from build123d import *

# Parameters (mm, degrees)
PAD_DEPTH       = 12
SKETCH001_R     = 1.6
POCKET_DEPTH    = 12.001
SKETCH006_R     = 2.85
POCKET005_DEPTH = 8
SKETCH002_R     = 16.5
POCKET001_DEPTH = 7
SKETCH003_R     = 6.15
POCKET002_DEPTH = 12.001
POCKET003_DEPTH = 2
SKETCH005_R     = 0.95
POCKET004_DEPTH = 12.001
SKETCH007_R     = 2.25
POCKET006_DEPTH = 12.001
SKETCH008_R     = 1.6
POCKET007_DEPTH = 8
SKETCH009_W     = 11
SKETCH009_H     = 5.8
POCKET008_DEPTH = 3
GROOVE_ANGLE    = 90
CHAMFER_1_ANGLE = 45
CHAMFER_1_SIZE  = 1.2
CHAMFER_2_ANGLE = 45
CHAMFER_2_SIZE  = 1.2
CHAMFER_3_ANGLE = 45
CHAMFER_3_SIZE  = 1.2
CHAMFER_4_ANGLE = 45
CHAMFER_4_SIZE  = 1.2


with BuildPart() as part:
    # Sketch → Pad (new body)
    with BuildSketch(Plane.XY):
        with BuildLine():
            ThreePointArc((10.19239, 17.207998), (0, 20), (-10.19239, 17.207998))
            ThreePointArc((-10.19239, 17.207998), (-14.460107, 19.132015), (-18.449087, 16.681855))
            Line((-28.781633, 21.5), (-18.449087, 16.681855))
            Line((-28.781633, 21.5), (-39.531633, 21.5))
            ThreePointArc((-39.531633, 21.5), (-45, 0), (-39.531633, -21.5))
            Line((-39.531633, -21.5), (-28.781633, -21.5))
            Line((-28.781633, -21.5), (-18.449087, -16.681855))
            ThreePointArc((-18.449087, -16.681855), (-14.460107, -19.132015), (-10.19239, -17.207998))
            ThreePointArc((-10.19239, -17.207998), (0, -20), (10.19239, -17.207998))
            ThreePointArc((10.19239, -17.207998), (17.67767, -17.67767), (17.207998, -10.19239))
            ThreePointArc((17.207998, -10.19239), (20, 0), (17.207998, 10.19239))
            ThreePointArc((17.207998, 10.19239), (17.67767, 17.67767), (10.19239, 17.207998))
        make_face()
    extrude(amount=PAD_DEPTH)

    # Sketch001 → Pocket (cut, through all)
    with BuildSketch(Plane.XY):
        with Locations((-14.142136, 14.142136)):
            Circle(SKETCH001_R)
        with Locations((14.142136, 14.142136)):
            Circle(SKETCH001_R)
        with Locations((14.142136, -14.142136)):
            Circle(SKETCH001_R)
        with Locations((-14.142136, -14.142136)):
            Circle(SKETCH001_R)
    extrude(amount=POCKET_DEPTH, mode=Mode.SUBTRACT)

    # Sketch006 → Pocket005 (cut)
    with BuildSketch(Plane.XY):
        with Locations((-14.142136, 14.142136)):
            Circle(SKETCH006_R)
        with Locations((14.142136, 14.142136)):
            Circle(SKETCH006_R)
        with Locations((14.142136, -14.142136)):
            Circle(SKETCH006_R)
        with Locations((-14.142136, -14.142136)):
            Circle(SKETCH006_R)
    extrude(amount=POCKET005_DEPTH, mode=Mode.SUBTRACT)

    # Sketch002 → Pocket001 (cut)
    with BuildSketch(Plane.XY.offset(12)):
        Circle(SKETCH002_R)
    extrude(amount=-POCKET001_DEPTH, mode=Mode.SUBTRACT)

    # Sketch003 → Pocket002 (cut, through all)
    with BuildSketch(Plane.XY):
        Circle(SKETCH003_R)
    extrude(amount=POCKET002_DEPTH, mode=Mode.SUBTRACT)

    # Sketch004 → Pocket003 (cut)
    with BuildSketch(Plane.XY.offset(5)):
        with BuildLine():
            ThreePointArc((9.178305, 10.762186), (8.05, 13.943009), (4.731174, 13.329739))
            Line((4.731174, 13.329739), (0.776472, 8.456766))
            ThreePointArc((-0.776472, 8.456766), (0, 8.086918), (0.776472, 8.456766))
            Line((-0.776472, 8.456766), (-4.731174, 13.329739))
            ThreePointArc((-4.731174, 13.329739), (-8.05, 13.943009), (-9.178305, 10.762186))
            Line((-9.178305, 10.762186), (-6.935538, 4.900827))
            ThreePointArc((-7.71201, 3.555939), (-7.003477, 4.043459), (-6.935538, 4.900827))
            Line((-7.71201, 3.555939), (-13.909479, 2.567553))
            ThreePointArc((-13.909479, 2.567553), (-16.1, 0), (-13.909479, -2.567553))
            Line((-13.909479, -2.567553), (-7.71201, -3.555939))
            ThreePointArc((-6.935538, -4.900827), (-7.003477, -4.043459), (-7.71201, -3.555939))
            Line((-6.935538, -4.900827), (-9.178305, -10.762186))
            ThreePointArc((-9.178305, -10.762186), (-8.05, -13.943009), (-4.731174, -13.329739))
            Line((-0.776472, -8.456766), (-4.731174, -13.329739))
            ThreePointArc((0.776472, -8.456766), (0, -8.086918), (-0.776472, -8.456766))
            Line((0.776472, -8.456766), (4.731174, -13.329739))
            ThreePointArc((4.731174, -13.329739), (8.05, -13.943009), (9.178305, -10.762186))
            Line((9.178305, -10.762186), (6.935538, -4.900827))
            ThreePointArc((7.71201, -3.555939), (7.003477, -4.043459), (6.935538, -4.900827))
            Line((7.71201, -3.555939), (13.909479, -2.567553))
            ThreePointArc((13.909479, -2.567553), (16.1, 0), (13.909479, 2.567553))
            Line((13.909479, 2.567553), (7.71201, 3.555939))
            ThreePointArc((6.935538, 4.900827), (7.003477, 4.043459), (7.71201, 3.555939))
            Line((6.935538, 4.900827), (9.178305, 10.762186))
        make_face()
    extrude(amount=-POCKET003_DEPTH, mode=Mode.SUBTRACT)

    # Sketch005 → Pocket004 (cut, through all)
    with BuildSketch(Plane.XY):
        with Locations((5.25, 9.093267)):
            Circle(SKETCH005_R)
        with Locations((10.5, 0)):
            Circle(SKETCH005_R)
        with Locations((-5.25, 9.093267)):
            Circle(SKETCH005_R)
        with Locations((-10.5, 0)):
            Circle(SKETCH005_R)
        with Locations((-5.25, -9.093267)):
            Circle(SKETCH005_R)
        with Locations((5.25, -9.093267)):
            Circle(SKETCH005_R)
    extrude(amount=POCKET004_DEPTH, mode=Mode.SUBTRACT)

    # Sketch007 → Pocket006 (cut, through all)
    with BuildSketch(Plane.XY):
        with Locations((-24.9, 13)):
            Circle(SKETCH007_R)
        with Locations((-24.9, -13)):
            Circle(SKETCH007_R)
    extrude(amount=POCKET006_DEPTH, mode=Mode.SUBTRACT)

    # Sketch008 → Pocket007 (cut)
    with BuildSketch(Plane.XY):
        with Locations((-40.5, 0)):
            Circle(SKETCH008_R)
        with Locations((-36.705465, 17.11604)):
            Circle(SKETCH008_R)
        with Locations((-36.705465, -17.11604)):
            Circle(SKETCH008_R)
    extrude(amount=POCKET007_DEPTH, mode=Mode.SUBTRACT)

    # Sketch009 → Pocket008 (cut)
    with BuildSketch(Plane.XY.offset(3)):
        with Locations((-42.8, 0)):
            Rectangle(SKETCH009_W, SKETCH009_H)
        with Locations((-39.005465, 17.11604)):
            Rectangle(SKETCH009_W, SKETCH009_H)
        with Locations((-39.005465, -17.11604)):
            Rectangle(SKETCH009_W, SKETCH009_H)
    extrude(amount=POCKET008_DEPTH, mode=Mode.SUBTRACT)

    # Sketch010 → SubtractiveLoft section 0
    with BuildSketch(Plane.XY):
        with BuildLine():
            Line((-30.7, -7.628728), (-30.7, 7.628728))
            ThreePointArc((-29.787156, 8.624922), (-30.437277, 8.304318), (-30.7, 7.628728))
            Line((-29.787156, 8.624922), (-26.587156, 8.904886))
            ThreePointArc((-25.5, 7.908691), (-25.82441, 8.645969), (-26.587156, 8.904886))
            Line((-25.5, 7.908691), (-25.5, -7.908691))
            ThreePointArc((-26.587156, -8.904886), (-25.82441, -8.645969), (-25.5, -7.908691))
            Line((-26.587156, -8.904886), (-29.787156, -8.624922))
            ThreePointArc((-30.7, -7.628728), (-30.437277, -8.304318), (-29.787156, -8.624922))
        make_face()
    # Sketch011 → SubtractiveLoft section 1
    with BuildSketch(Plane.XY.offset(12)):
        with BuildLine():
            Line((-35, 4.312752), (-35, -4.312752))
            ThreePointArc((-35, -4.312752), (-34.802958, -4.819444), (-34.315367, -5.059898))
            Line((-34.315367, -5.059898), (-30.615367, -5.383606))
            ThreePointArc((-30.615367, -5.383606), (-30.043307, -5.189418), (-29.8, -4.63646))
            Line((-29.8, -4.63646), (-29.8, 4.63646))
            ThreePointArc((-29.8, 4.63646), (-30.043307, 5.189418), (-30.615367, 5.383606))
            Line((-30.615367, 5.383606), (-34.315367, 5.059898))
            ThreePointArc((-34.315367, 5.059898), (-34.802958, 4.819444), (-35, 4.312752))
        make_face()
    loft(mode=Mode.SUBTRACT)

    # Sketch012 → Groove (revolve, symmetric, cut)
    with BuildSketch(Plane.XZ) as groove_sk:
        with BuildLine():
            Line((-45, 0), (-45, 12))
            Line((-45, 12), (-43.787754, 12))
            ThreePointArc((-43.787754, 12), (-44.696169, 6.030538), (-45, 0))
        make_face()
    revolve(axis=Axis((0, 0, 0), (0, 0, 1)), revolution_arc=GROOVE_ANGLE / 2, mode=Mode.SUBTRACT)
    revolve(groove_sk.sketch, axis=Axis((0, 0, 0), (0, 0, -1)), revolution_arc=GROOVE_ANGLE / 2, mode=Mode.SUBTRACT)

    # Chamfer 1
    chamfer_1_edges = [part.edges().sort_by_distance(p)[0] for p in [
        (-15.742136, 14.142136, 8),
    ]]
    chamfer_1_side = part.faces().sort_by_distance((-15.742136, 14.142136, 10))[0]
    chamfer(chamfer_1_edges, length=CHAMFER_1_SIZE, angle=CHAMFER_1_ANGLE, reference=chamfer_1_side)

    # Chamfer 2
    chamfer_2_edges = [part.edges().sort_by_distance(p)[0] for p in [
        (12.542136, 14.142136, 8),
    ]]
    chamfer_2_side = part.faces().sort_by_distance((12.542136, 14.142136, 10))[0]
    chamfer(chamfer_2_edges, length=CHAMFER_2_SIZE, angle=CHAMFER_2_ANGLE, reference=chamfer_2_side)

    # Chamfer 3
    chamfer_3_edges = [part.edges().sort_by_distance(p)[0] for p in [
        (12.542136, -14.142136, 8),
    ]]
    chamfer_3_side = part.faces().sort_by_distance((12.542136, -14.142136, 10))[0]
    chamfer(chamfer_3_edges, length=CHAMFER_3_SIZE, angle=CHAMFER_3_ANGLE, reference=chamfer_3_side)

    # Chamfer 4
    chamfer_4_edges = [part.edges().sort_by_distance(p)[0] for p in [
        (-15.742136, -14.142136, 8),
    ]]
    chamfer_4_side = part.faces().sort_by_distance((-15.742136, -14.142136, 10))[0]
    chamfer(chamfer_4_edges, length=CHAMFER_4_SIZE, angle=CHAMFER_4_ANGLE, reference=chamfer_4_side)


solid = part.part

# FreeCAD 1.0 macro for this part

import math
import FreeCAD as App
import Part
import Sketcher

V = App.Vector
Q = App.Units.Quantity


def edges_at(feature, points):
    """Names of the edges that pass closest to the given points."""
    edges = feature.Shape.Edges
    near = lambda p: min(range(len(edges)), key=lambda i: edges[i].distToShape(Part.Vertex(*p))[0])
    return sorted({f"Edge{near(p) + 1}" for p in points})


def add_polygon(sketch, points):
    """Adds a closed chain of lines whose ends are joined by coincident constraints."""
    first, n = sketch.GeometryCount, len(points)
    for a, b in zip(points, points[1:] + points[:1]):
        sketch.addGeometry(Part.LineSegment(App.Vector(*a, 0), App.Vector(*b, 0)), False)
    for i in range(n):
        sketch.addConstraint(Sketcher.Constraint("Coincident", first + i, 2, first + (i + 1) % n, 1))

doc = App.newDocument("Part")
body = doc.addObject("PartDesign::Body", "Body")

sketch1 = doc.addObject("Sketcher::SketchObject", "Sketch")
body.addObject(sketch1)
sketch1.AttachmentSupport = (doc.XY_Plane, [""])
sketch1.MapMode = "FlatFace"
sketch1.addGeometry(Part.ArcOfCircle(Part.Circle(V(0, 0, 0), V(0, 0, 1), 20), math.radians(59), math.radians(121)), False)
sketch1.addGeometry(Part.ArcOfCircle(Part.Circle(V(-14, 14, 0), V(0, 0, 1), 5), math.radians(38), math.radians(149)), False)
sketch1.addGeometry(Part.LineSegment(V(-18, 17, 0), V(-29, 22, 0)), False)
sketch1.addGeometry(Part.LineSegment(V(-29, 22, 0), V(-40, 22, 0)), False)
sketch1.addGeometry(Part.ArcOfCircle(Part.Circle(V(0, 0, 0), V(0, 0, 1), 45), math.radians(151), math.radians(209)), False)
sketch1.addGeometry(Part.LineSegment(V(-40, -22, 0), V(-29, -22, 0)), False)
sketch1.addGeometry(Part.LineSegment(V(-29, -22, 0), V(-18, -17, 0)), False)
sketch1.addGeometry(Part.ArcOfCircle(Part.Circle(V(-14, -14, 0), V(0, 0, 1), 5), math.radians(-149), math.radians(-38)), False)
sketch1.addGeometry(Part.ArcOfCircle(Part.Circle(V(0, 0, 0), V(0, 0, 1), 20), math.radians(-121), math.radians(-59)), False)
sketch1.addGeometry(Part.ArcOfCircle(Part.Circle(V(14, -14, 0), V(0, 0, 1), 5), math.radians(-142), math.radians(52)), False)
sketch1.addGeometry(Part.ArcOfCircle(Part.Circle(V(0, 0, 0), V(0, 0, 1), 20), math.radians(-31), math.radians(31)), False)
sketch1.addGeometry(Part.ArcOfCircle(Part.Circle(V(14, 14, 0), V(0, 0, 1), 5), math.radians(-52), math.radians(142)), False)
sketch1.addConstraint(Sketcher.Constraint("Coincident", 0, 2, 1, 1))
sketch1.addConstraint(Sketcher.Constraint("Coincident", 1, 2, 2, 1))
sketch1.addConstraint(Sketcher.Constraint("Coincident", 2, 2, 3, 1))
sketch1.addConstraint(Sketcher.Constraint("Coincident", 3, 2, 4, 1))
sketch1.addConstraint(Sketcher.Constraint("Coincident", 4, 2, 5, 1))
sketch1.addConstraint(Sketcher.Constraint("Coincident", 5, 2, 6, 1))
sketch1.addConstraint(Sketcher.Constraint("Coincident", 6, 2, 7, 1))
sketch1.addConstraint(Sketcher.Constraint("Coincident", 7, 2, 8, 1))
sketch1.addConstraint(Sketcher.Constraint("Coincident", 8, 2, 9, 1))
sketch1.addConstraint(Sketcher.Constraint("Coincident", 9, 2, 10, 1))
sketch1.addConstraint(Sketcher.Constraint("Coincident", 10, 2, 11, 1))
sketch1.addConstraint(Sketcher.Constraint("Coincident", 11, 2, 0, 1))
sketch1.addConstraint(Sketcher.Constraint("Horizontal", 3))
sketch1.addConstraint(Sketcher.Constraint("Horizontal", 5))
sketch1.addConstraint(Sketcher.Constraint("Coincident", 0, 3, -1, 1))
sketch1.addConstraint(Sketcher.Constraint("Coincident", 4, 3, -1, 1))
sketch1.addConstraint(Sketcher.Constraint("Coincident", 8, 3, -1, 1))
sketch1.addConstraint(Sketcher.Constraint("Coincident", 10, 3, -1, 1))
sketch1.addConstraint(Sketcher.Constraint("Equal", 1, 7))
sketch1.addConstraint(Sketcher.Constraint("Equal", 0, 8))
sketch1.addConstraint(Sketcher.Constraint("Equal", 7, 9))
sketch1.addConstraint(Sketcher.Constraint("Equal", 8, 10))
sketch1.addConstraint(Sketcher.Constraint("Equal", 9, 11))
sketch1.addConstraint(Sketcher.Constraint("Symmetric", 1, 3, 9, 3, -1, 1))
sketch1.addConstraint(Sketcher.Constraint("Symmetric", 7, 3, 11, 3, -1, 1))
sketch1.addConstraint(Sketcher.Constraint("Symmetric", 7, 3, 9, 3, -2))
sketch1.addConstraint(Sketcher.Constraint("Symmetric", 2, 2, 5, 2, -1))
sketch1.addConstraint(Sketcher.Constraint("Vertical", 1, 2, 6, 2))
sketch1.addConstraint(Sketcher.Constraint("Radius", 0, Q("20.000002 mm")))
sketch1.addConstraint(Sketcher.Constraint("Radius", 1, Q("5.000001 mm")))
sketch1.addConstraint(Sketcher.Constraint("Radius", 4, Q("45.000001 mm")))
sketch1.addConstraint(Sketcher.Constraint("Angle", 2, Q("155.000001 deg")))
sketch1.addConstraint(Sketcher.Constraint("DistanceY", 4, 2, 3, 2, Q("43 mm")))
sketch1.addConstraint(Sketcher.Constraint("DistanceX", 3, 2, 3, 1, Q("10.75 mm")))
sketch1.addConstraint(Sketcher.Constraint("DistanceY", 7, 2, -1, 1, Q("17.207998 mm")))
sketch1.addConstraint(Sketcher.Constraint("DistanceX", 10, 3, 10, 2, Q("17.208 mm")))
pad1 = doc.addObject("PartDesign::Pad", "Pad")
body.addObject(pad1)
pad1.Profile = sketch1
pad1.Length = 12

sketch2 = doc.addObject("Sketcher::SketchObject", "Sketch001")
body.addObject(sketch2)
sketch2.AttachmentSupport = (doc.XY_Plane, [""])
sketch2.MapMode = "FlatFace"
sketch2.addGeometry(Part.Circle(V(-14.1, 14.1, 0), V(0, 0, 1), 1.6), False)
sketch2.addGeometry(Part.Circle(V(14.1, 14.1, 0), V(0, 0, 1), 1.6), False)
sketch2.addGeometry(Part.Circle(V(14.1, -14.1, 0), V(0, 0, 1), 1.6), False)
sketch2.addGeometry(Part.Circle(V(-14.1, -14.1, 0), V(0, 0, 1), 1.6), False)
sketch2.addConstraint(Sketcher.Constraint("Equal", 0, 1))
sketch2.addConstraint(Sketcher.Constraint("Equal", 1, 2))
sketch2.addConstraint(Sketcher.Constraint("Equal", 2, 3))
sketch2.addConstraint(Sketcher.Constraint("Symmetric", 0, 3, 2, 3, -1, 1))
sketch2.addConstraint(Sketcher.Constraint("Symmetric", 1, 3, 3, 3, -1, 1))
sketch2.addConstraint(Sketcher.Constraint("Symmetric", 0, 3, 1, 3, -2))
sketch2.addConstraint(Sketcher.Constraint("Diameter", 0, Q("3.2 mm")))
sketch2.addConstraint(Sketcher.Constraint("DistanceX", 0, 3, -1, 1, Q("14.142136 mm")))
sketch2.addConstraint(Sketcher.Constraint("DistanceY", -1, 1, 0, 3, Q("14.142136 mm")))
pocket1 = doc.addObject("PartDesign::Pocket", "Pocket")
body.addObject(pocket1)
pocket1.Profile = sketch2
pocket1.Type = "ThroughAll"
pocket1.Reversed = True

sketch3 = doc.addObject("Sketcher::SketchObject", "Sketch002")
body.addObject(sketch3)
sketch3.AttachmentSupport = (doc.XY_Plane, [""])
sketch3.MapMode = "FlatFace"
sketch3.addGeometry(Part.Circle(V(-14.1, 14.1, 0), V(0, 0, 1), 2.9), False)
sketch3.addGeometry(Part.Circle(V(14.1, 14.1, 0), V(0, 0, 1), 2.9), False)
sketch3.addGeometry(Part.Circle(V(14.1, -14.1, 0), V(0, 0, 1), 2.9), False)
sketch3.addGeometry(Part.Circle(V(-14.1, -14.1, 0), V(0, 0, 1), 2.9), False)
sketch3.addConstraint(Sketcher.Constraint("Equal", 0, 1))
sketch3.addConstraint(Sketcher.Constraint("Equal", 1, 2))
sketch3.addConstraint(Sketcher.Constraint("Equal", 2, 3))
sketch3.addConstraint(Sketcher.Constraint("Symmetric", 0, 3, 2, 3, -1, 1))
sketch3.addConstraint(Sketcher.Constraint("Symmetric", 1, 3, 3, 3, -1, 1))
sketch3.addConstraint(Sketcher.Constraint("Symmetric", 0, 3, 1, 3, -2))
sketch3.addConstraint(Sketcher.Constraint("Diameter", 0, Q("5.7 mm")))
sketch3.addConstraint(Sketcher.Constraint("DistanceX", 0, 3, -1, 1, Q("14.142136 mm")))
sketch3.addConstraint(Sketcher.Constraint("DistanceY", -1, 1, 0, 3, Q("14.142136 mm")))
pocket2 = doc.addObject("PartDesign::Pocket", "Pocket001")
body.addObject(pocket2)
pocket2.Profile = sketch3
pocket2.Length = 8
pocket2.Reversed = True

sketch4 = doc.addObject("Sketcher::SketchObject", "Sketch003")
body.addObject(sketch4)
sketch4.AttachmentSupport = (doc.XY_Plane, [""])
sketch4.MapMode = "FlatFace"
sketch4.AttachmentOffset = App.Placement(V(0, 0, 12), App.Rotation())
sketch4.addGeometry(Part.Circle(V(0, 0, 0), V(0, 0, 1), 16), False)
sketch4.addConstraint(Sketcher.Constraint("Coincident", 0, 3, -1, 1))
sketch4.addConstraint(Sketcher.Constraint("Diameter", 0, Q("33 mm")))
pocket3 = doc.addObject("PartDesign::Pocket", "Pocket002")
body.addObject(pocket3)
pocket3.Profile = sketch4
pocket3.Length = 7

sketch5 = doc.addObject("Sketcher::SketchObject", "Sketch004")
body.addObject(sketch5)
sketch5.AttachmentSupport = (doc.XY_Plane, [""])
sketch5.MapMode = "FlatFace"
sketch5.addGeometry(Part.Circle(V(0, 0, 0), V(0, 0, 1), 6), False)
sketch5.addConstraint(Sketcher.Constraint("Coincident", 0, 3, -1, 1))
sketch5.addConstraint(Sketcher.Constraint("Diameter", 0, Q("12.3 mm")))
pocket4 = doc.addObject("PartDesign::Pocket", "Pocket003")
body.addObject(pocket4)
pocket4.Profile = sketch5
pocket4.Type = "ThroughAll"
pocket4.Reversed = True

sketch6 = doc.addObject("Sketcher::SketchObject", "Sketch005")
body.addObject(sketch6)
sketch6.AttachmentSupport = (doc.XY_Plane, [""])
sketch6.MapMode = "FlatFace"
sketch6.AttachmentOffset = App.Placement(V(0, 0, 5), App.Rotation())
sketch6.addGeometry(Part.ArcOfCircle(Part.Circle(V(6.7, 11.7, 0), V(0, 0, 1), 2.6), math.radians(-21), math.radians(141)), False)
sketch6.addGeometry(Part.LineSegment(V(4.7, 13.3, 0), V(0.8, 8.5, 0)), False)
sketch6.addGeometry(Part.ArcOfCircle(Part.Circle(V(0, 9.1, 0), V(0, 0, 1), 1), math.radians(-141), math.radians(-39)), False)
sketch6.addGeometry(Part.LineSegment(V(-0.8, 8.5, 0), V(-4.7, 13.3, 0)), False)
sketch6.addGeometry(Part.ArcOfCircle(Part.Circle(V(-6.7, 11.7, 0), V(0, 0, 1), 2.6), math.radians(39), math.radians(201)), False)
sketch6.addGeometry(Part.LineSegment(V(-9.2, 10.8, 0), V(-6.9, 4.9, 0)), False)
sketch6.addGeometry(Part.ArcOfCircle(Part.Circle(V(-7.9, 4.5, 0), V(0, 0, 1), 1), math.radians(-81), math.radians(21)), False)
sketch6.addGeometry(Part.LineSegment(V(-7.7, 3.6, 0), V(-13.9, 2.6, 0)), False)
sketch6.addGeometry(Part.ArcOfCircle(Part.Circle(V(-13.5, 0, 0), V(0, 0, 1), 2.6), math.radians(99), math.radians(261)), False)
sketch6.addGeometry(Part.LineSegment(V(-13.9, -2.6, 0), V(-7.7, -3.6, 0)), False)
sketch6.addGeometry(Part.ArcOfCircle(Part.Circle(V(-7.9, -4.5, 0), V(0, 0, 1), 1), math.radians(-21), math.radians(81)), False)
sketch6.addGeometry(Part.LineSegment(V(-6.9, -4.9, 0), V(-9.2, -10.8, 0)), False)
sketch6.addGeometry(Part.ArcOfCircle(Part.Circle(V(-6.7, -11.7, 0), V(0, 0, 1), 2.6), math.radians(159), math.radians(321)), False)
sketch6.addGeometry(Part.LineSegment(V(-4.7, -13.3, 0), V(-0.8, -8.5, 0)), False)
sketch6.addGeometry(Part.ArcOfCircle(Part.Circle(V(0, -9.1, 0), V(0, 0, 1), 1), math.radians(39), math.radians(141)), False)
sketch6.addGeometry(Part.LineSegment(V(0.8, -8.5, 0), V(4.7, -13.3, 0)), False)
sketch6.addGeometry(Part.ArcOfCircle(Part.Circle(V(6.7, -11.7, 0), V(0, 0, 1), 2.6), math.radians(-141), math.radians(21)), False)
sketch6.addGeometry(Part.LineSegment(V(9.2, -10.8, 0), V(6.9, -4.9, 0)), False)
sketch6.addGeometry(Part.ArcOfCircle(Part.Circle(V(7.9, -4.5, 0), V(0, 0, 1), 1), math.radians(99), math.radians(201)), False)
sketch6.addGeometry(Part.LineSegment(V(7.7, -3.6, 0), V(13.9, -2.6, 0)), False)
sketch6.addGeometry(Part.ArcOfCircle(Part.Circle(V(13.5, 0, 0), V(0, 0, 1), 2.6), math.radians(-81), math.radians(81)), False)
sketch6.addGeometry(Part.LineSegment(V(13.9, 2.6, 0), V(7.7, 3.6, 0)), False)
sketch6.addGeometry(Part.ArcOfCircle(Part.Circle(V(7.9, 4.5, 0), V(0, 0, 1), 1), math.radians(159), math.radians(261)), False)
sketch6.addGeometry(Part.LineSegment(V(6.9, 4.9, 0), V(9.2, 10.8, 0)), False)
sketch6.addConstraint(Sketcher.Constraint("Tangent", 0, 2, 1, 1))
sketch6.addConstraint(Sketcher.Constraint("Tangent", 1, 2, 2, 2))
sketch6.addConstraint(Sketcher.Constraint("Tangent", 2, 1, 3, 1))
sketch6.addConstraint(Sketcher.Constraint("Tangent", 3, 2, 4, 1))
sketch6.addConstraint(Sketcher.Constraint("Tangent", 4, 2, 5, 1))
sketch6.addConstraint(Sketcher.Constraint("Tangent", 5, 2, 6, 2))
sketch6.addConstraint(Sketcher.Constraint("Tangent", 6, 1, 7, 1))
sketch6.addConstraint(Sketcher.Constraint("Tangent", 7, 2, 8, 1))
sketch6.addConstraint(Sketcher.Constraint("Tangent", 8, 2, 9, 1))
sketch6.addConstraint(Sketcher.Constraint("Tangent", 9, 2, 10, 2))
sketch6.addConstraint(Sketcher.Constraint("Tangent", 10, 1, 11, 1))
sketch6.addConstraint(Sketcher.Constraint("Tangent", 11, 2, 12, 1))
sketch6.addConstraint(Sketcher.Constraint("Tangent", 12, 2, 13, 1))
sketch6.addConstraint(Sketcher.Constraint("Tangent", 13, 2, 14, 2))
sketch6.addConstraint(Sketcher.Constraint("Tangent", 14, 1, 15, 1))
sketch6.addConstraint(Sketcher.Constraint("Tangent", 15, 2, 16, 1))
sketch6.addConstraint(Sketcher.Constraint("Tangent", 16, 2, 17, 1))
sketch6.addConstraint(Sketcher.Constraint("Tangent", 17, 2, 18, 2))
sketch6.addConstraint(Sketcher.Constraint("Tangent", 18, 1, 19, 1))
sketch6.addConstraint(Sketcher.Constraint("Tangent", 19, 2, 20, 1))
sketch6.addConstraint(Sketcher.Constraint("Tangent", 20, 2, 21, 1))
sketch6.addConstraint(Sketcher.Constraint("Tangent", 21, 2, 22, 2))
sketch6.addConstraint(Sketcher.Constraint("Tangent", 22, 1, 23, 1))
sketch6.addConstraint(Sketcher.Constraint("Tangent", 23, 2, 0, 1))
sketch6.addConstraint(Sketcher.Constraint("Equal", 0, 4))
sketch6.addConstraint(Sketcher.Constraint("Equal", 2, 6))
sketch6.addConstraint(Sketcher.Constraint("Equal", 4, 8))
sketch6.addConstraint(Sketcher.Constraint("Equal", 6, 10))
sketch6.addConstraint(Sketcher.Constraint("Equal", 8, 12))
sketch6.addConstraint(Sketcher.Constraint("Equal", 10, 14))
sketch6.addConstraint(Sketcher.Constraint("Equal", 12, 16))
sketch6.addConstraint(Sketcher.Constraint("Equal", 14, 18))
sketch6.addConstraint(Sketcher.Constraint("Equal", 16, 20))
sketch6.addConstraint(Sketcher.Constraint("Equal", 18, 22))
sketch6.addConstraint(Sketcher.Constraint("Symmetric", 0, 3, 12, 3, -1, 1))
sketch6.addConstraint(Sketcher.Constraint("Symmetric", 2, 3, 14, 3, -1, 1))
sketch6.addConstraint(Sketcher.Constraint("Symmetric", 4, 3, 16, 3, -1, 1))
sketch6.addConstraint(Sketcher.Constraint("Symmetric", 6, 3, 18, 3, -1, 1))
sketch6.addConstraint(Sketcher.Constraint("Symmetric", 8, 3, 20, 3, -1, 1))
sketch6.addConstraint(Sketcher.Constraint("Symmetric", 10, 3, 22, 3, -1, 1))
sketch6.addConstraint(Sketcher.Constraint("Symmetric", 0, 3, 4, 3, -2))
sketch6.addConstraint(Sketcher.Constraint("Symmetric", 10, 3, 18, 3, -2))
sketch6.addConstraint(Sketcher.Constraint("PointOnObject", 2, 3, -2))
sketch6.addConstraint(Sketcher.Constraint("PointOnObject", 8, 3, -1))
sketch6.addConstraint(Sketcher.Constraint("Equal", 3, 5))
sketch6.addConstraint(Sketcher.Constraint("Equal", 5, 7))
sketch6.addConstraint(Sketcher.Constraint("Radius", 2, Q("1 mm")))
sketch6.addConstraint(Sketcher.Constraint("Radius", 0, Q("2.6 mm")))
sketch6.addConstraint(Sketcher.Constraint("DistanceX", 8, 3, -1, 1, Q("13.5 mm")))
sketch6.addConstraint(Sketcher.Constraint("DistanceX", 4, 3, 0, 3, Q("13.5 mm")))
sketch6.addConstraint(Sketcher.Constraint("DistanceX", 1, 2, 0, 2, Q("3.954702 mm")))
sketch6.addConstraint(Sketcher.Constraint("DistanceY", 10, 3, 6, 1, Q("8.099399 mm")))
pocket5 = doc.addObject("PartDesign::Pocket", "Pocket004")
body.addObject(pocket5)
pocket5.Profile = sketch6
pocket5.Length = 2

sketch7 = doc.addObject("Sketcher::SketchObject", "Sketch006")
body.addObject(sketch7)
sketch7.AttachmentSupport = (doc.XY_Plane, [""])
sketch7.MapMode = "FlatFace"
sketch7.addGeometry(Part.Circle(V(5.2, 9.1, 0), V(0, 0, 1), 0.9), False)
sketch7.addGeometry(Part.Circle(V(10.5, 0, 0), V(0, 0, 1), 0.9), False)
sketch7.addGeometry(Part.Circle(V(-5.2, 9.1, 0), V(0, 0, 1), 0.9), False)
sketch7.addGeometry(Part.Circle(V(-10.5, 0, 0), V(0, 0, 1), 0.9), False)
sketch7.addGeometry(Part.Circle(V(-5.2, -9.1, 0), V(0, 0, 1), 0.9), False)
sketch7.addGeometry(Part.Circle(V(5.2, -9.1, 0), V(0, 0, 1), 0.9), False)
sketch7.addConstraint(Sketcher.Constraint("Equal", 0, 1))
sketch7.addConstraint(Sketcher.Constraint("Equal", 1, 2))
sketch7.addConstraint(Sketcher.Constraint("Equal", 2, 3))
sketch7.addConstraint(Sketcher.Constraint("Equal", 3, 4))
sketch7.addConstraint(Sketcher.Constraint("Equal", 4, 5))
sketch7.addConstraint(Sketcher.Constraint("Symmetric", 1, 3, 3, 3, -1, 1))
sketch7.addConstraint(Sketcher.Constraint("Symmetric", 0, 3, 4, 3, -1, 1))
sketch7.addConstraint(Sketcher.Constraint("Symmetric", 2, 3, 5, 3, -1, 1))
sketch7.addConstraint(Sketcher.Constraint("Symmetric", 0, 3, 2, 3, -2))
sketch7.addConstraint(Sketcher.Constraint("PointOnObject", 1, 3, -1))
sketch7.addConstraint(Sketcher.Constraint("Diameter", 0, Q("1.9 mm")))
sketch7.addConstraint(Sketcher.Constraint("DistanceX", 3, 3, 1, 3, Q("21 mm")))
sketch7.addConstraint(Sketcher.Constraint("DistanceX", 2, 3, 0, 3, Q("10.5 mm")))
sketch7.addConstraint(Sketcher.Constraint("DistanceY", -1, 1, 0, 3, Q("9.093267 mm")))
pocket6 = doc.addObject("PartDesign::Pocket", "Pocket005")
body.addObject(pocket6)
pocket6.Profile = sketch7
pocket6.Type = "ThroughAll"
pocket6.Reversed = True

sketch8 = doc.addObject("Sketcher::SketchObject", "Sketch007")
body.addObject(sketch8)
sketch8.AttachmentSupport = (doc.XY_Plane, [""])
sketch8.MapMode = "FlatFace"
sketch8.addGeometry(Part.Circle(V(-24.9, 13, 0), V(0, 0, 1), 2.2), False)
sketch8.addGeometry(Part.Circle(V(-24.9, -13, 0), V(0, 0, 1), 2.2), False)
sketch8.addConstraint(Sketcher.Constraint("Equal", 0, 1))
sketch8.addConstraint(Sketcher.Constraint("Symmetric", 0, 3, 1, 3, -1))
sketch8.addConstraint(Sketcher.Constraint("Diameter", 0, Q("4.5 mm")))
sketch8.addConstraint(Sketcher.Constraint("DistanceY", -1, 1, 0, 3, Q("13 mm")))
sketch8.addConstraint(Sketcher.Constraint("DistanceX", 0, 3, -1, 1, Q("24.9 mm")))
pocket7 = doc.addObject("PartDesign::Pocket", "Pocket006")
body.addObject(pocket7)
pocket7.Profile = sketch8
pocket7.Type = "ThroughAll"
pocket7.Reversed = True

sketch9 = doc.addObject("Sketcher::SketchObject", "Sketch008")
body.addObject(sketch9)
sketch9.AttachmentSupport = (doc.XY_Plane, [""])
sketch9.MapMode = "FlatFace"
sketch9.addGeometry(Part.Circle(V(-40.5, 0, 0), V(0, 0, 1), 1.6), False)
sketch9.addGeometry(Part.Circle(V(-36.7, 17.1, 0), V(0, 0, 1), 1.6), False)
sketch9.addGeometry(Part.Circle(V(-36.7, -17.1, 0), V(0, 0, 1), 1.6), False)
sketch9.addConstraint(Sketcher.Constraint("Equal", 0, 1))
sketch9.addConstraint(Sketcher.Constraint("Equal", 1, 2))
sketch9.addConstraint(Sketcher.Constraint("Symmetric", 1, 3, 2, 3, -1))
sketch9.addConstraint(Sketcher.Constraint("PointOnObject", 0, 3, -1))
sketch9.addConstraint(Sketcher.Constraint("Diameter", 0, Q("3.2 mm")))
sketch9.addConstraint(Sketcher.Constraint("DistanceX", 0, 3, -1, 1, Q("40.5 mm")))
sketch9.addConstraint(Sketcher.Constraint("DistanceY", -1, 1, 1, 3, Q("17.11604 mm")))
sketch9.addConstraint(Sketcher.Constraint("DistanceX", 1, 3, -1, 1, Q("36.705465 mm")))
pocket8 = doc.addObject("PartDesign::Pocket", "Pocket007")
body.addObject(pocket8)
pocket8.Profile = sketch9
pocket8.Length = 8
pocket8.Reversed = True

sketch10 = doc.addObject("Sketcher::SketchObject", "Sketch009")
body.addObject(sketch10)
sketch10.AttachmentSupport = (doc.XY_Plane, [""])
sketch10.MapMode = "FlatFace"
sketch10.AttachmentOffset = App.Placement(V(0, 0, 3), App.Rotation())
add_polygon(sketch10, [(-48, 3), (-48, -3), (-37, -3), (-37, 3)])
add_polygon(sketch10, [(-45, 20), (-45, 14), (-34, 14), (-34, 20)])
add_polygon(sketch10, [(-45, -14), (-45, -20), (-34, -20), (-34, -14)])
sketch10.addConstraint(Sketcher.Constraint("Vertical", 0))
sketch10.addConstraint(Sketcher.Constraint("Horizontal", 1))
sketch10.addConstraint(Sketcher.Constraint("Vertical", 2))
sketch10.addConstraint(Sketcher.Constraint("Horizontal", 3))
sketch10.addConstraint(Sketcher.Constraint("Vertical", 4))
sketch10.addConstraint(Sketcher.Constraint("Horizontal", 5))
sketch10.addConstraint(Sketcher.Constraint("Vertical", 6))
sketch10.addConstraint(Sketcher.Constraint("Horizontal", 7))
sketch10.addConstraint(Sketcher.Constraint("Vertical", 8))
sketch10.addConstraint(Sketcher.Constraint("Horizontal", 9))
sketch10.addConstraint(Sketcher.Constraint("Vertical", 10))
sketch10.addConstraint(Sketcher.Constraint("Horizontal", 11))
sketch10.addConstraint(Sketcher.Constraint("Symmetric", 7, 2, 8, 2, -1))
sketch10.addConstraint(Sketcher.Constraint("Symmetric", 5, 2, 10, 2, -1))
sketch10.addConstraint(Sketcher.Constraint("Equal", 3, 5))
sketch10.addConstraint(Sketcher.Constraint("Equal", 2, 4))
sketch10.addConstraint(Sketcher.Constraint("DistanceX", 1, 1, 1, 2, Q("11 mm")))
sketch10.addConstraint(Sketcher.Constraint("DistanceY", 0, 2, 0, 1, Q("5.8 mm")))
sketch10.addConstraint(Sketcher.Constraint("DistanceX", 0, 2, -1, 1, Q("48.3 mm")))
sketch10.addConstraint(Sketcher.Constraint("DistanceY", 0, 2, -1, 1, Q("2.9 mm")))
sketch10.addConstraint(Sketcher.Constraint("DistanceY", -1, 1, 4, 2, Q("14.21604 mm")))
sketch10.addConstraint(Sketcher.Constraint("DistanceX", 4, 2, -1, 1, Q("44.505465 mm")))
pocket9 = doc.addObject("PartDesign::Pocket", "Pocket008")
body.addObject(pocket9)
pocket9.Profile = sketch10
pocket9.Length = 3
pocket9.Reversed = True

sketch11 = doc.addObject("Sketcher::SketchObject", "Sketch010")
body.addObject(sketch11)
sketch11.AttachmentSupport = (doc.XY_Plane, [""])
sketch11.MapMode = "FlatFace"
sketch11.addGeometry(Part.LineSegment(V(-30.7, 7.6, 0), V(-30.7, -7.6, 0)), False)
sketch11.addGeometry(Part.ArcOfCircle(Part.Circle(V(-29.7, -7.6, 0), V(0, 0, 1), 1), math.radians(-180), math.radians(-95)), False)
sketch11.addGeometry(Part.LineSegment(V(-29.8, -8.6, 0), V(-26.6, -8.9, 0)), False)
sketch11.addGeometry(Part.ArcOfCircle(Part.Circle(V(-26.5, -7.9, 0), V(0, 0, 1), 1), math.radians(-95), math.radians(0)), False)
sketch11.addGeometry(Part.LineSegment(V(-25.5, -7.9, 0), V(-25.5, 7.9, 0)), False)
sketch11.addGeometry(Part.ArcOfCircle(Part.Circle(V(-26.5, 7.9, 0), V(0, 0, 1), 1), math.radians(0), math.radians(95)), False)
sketch11.addGeometry(Part.LineSegment(V(-26.6, 8.9, 0), V(-29.8, 8.6, 0)), False)
sketch11.addGeometry(Part.ArcOfCircle(Part.Circle(V(-29.7, 7.6, 0), V(0, 0, 1), 1), math.radians(95), math.radians(180)), False)
sketch11.addConstraint(Sketcher.Constraint("Tangent", 0, 2, 1, 1))
sketch11.addConstraint(Sketcher.Constraint("Tangent", 1, 2, 2, 1))
sketch11.addConstraint(Sketcher.Constraint("Tangent", 2, 2, 3, 1))
sketch11.addConstraint(Sketcher.Constraint("Tangent", 3, 2, 4, 1))
sketch11.addConstraint(Sketcher.Constraint("Tangent", 4, 2, 5, 1))
sketch11.addConstraint(Sketcher.Constraint("Tangent", 5, 2, 6, 1))
sketch11.addConstraint(Sketcher.Constraint("Tangent", 6, 2, 7, 1))
sketch11.addConstraint(Sketcher.Constraint("Tangent", 7, 2, 0, 1))
sketch11.addConstraint(Sketcher.Constraint("Vertical", 0))
sketch11.addConstraint(Sketcher.Constraint("Vertical", 4))
sketch11.addConstraint(Sketcher.Constraint("Equal", 1, 3))
sketch11.addConstraint(Sketcher.Constraint("Equal", 3, 5))
sketch11.addConstraint(Sketcher.Constraint("Equal", 5, 7))
sketch11.addConstraint(Sketcher.Constraint("Symmetric", 2, 2, 5, 2, -1))
sketch11.addConstraint(Sketcher.Constraint("Radius", 1, Q("1 mm")))
sketch11.addConstraint(Sketcher.Constraint("Angle", 2, Q("-5.000005 deg")))
sketch11.addConstraint(Sketcher.Constraint("DistanceX", 1, 3, -1, 1, Q("29.7 mm")))
sketch11.addConstraint(Sketcher.Constraint("DistanceX", 3, 3, -1, 1, Q("26.5 mm")))
sketch11.addConstraint(Sketcher.Constraint("DistanceY", 0, 2, 0, 1, Q("15.257456 mm")))

sketch12 = doc.addObject("Sketcher::SketchObject", "Sketch011")
body.addObject(sketch12)
sketch12.AttachmentSupport = (doc.XY_Plane, [""])
sketch12.MapMode = "FlatFace"
sketch12.AttachmentOffset = App.Placement(V(0, 0, 12), App.Rotation())
sketch12.addGeometry(Part.LineSegment(V(-35, 4.3, 0), V(-35, -4.3, 0)), False)
sketch12.addGeometry(Part.ArcOfCircle(Part.Circle(V(-34.2, -4.3, 0), V(0, 0, 1), 0.8), math.radians(-180), math.radians(-95)), False)
sketch12.addGeometry(Part.LineSegment(V(-34.3, -5.1, 0), V(-30.6, -5.4, 0)), False)
sketch12.addGeometry(Part.ArcOfCircle(Part.Circle(V(-30.5, -4.6, 0), V(0, 0, 1), 0.7), math.radians(-95), math.radians(0)), False)
sketch12.addGeometry(Part.LineSegment(V(-29.8, -4.6, 0), V(-29.8, 4.6, 0)), False)
sketch12.addGeometry(Part.ArcOfCircle(Part.Circle(V(-30.5, 4.6, 0), V(0, 0, 1), 0.7), math.radians(0), math.radians(95)), False)
sketch12.addGeometry(Part.LineSegment(V(-30.6, 5.4, 0), V(-34.3, 5.1, 0)), False)
sketch12.addGeometry(Part.ArcOfCircle(Part.Circle(V(-34.2, 4.3, 0), V(0, 0, 1), 0.8), math.radians(95), math.radians(180)), False)
sketch12.addConstraint(Sketcher.Constraint("Tangent", 0, 2, 1, 1))
sketch12.addConstraint(Sketcher.Constraint("Tangent", 1, 2, 2, 1))
sketch12.addConstraint(Sketcher.Constraint("Tangent", 2, 2, 3, 1))
sketch12.addConstraint(Sketcher.Constraint("Tangent", 3, 2, 4, 1))
sketch12.addConstraint(Sketcher.Constraint("Tangent", 4, 2, 5, 1))
sketch12.addConstraint(Sketcher.Constraint("Tangent", 5, 2, 6, 1))
sketch12.addConstraint(Sketcher.Constraint("Tangent", 6, 2, 7, 1))
sketch12.addConstraint(Sketcher.Constraint("Tangent", 7, 2, 0, 1))
sketch12.addConstraint(Sketcher.Constraint("Vertical", 0))
sketch12.addConstraint(Sketcher.Constraint("Vertical", 4))
sketch12.addConstraint(Sketcher.Constraint("Equal", 1, 3))
sketch12.addConstraint(Sketcher.Constraint("Equal", 3, 5))
sketch12.addConstraint(Sketcher.Constraint("Equal", 5, 7))
sketch12.addConstraint(Sketcher.Constraint("Symmetric", 2, 2, 5, 2, -1))
sketch12.addConstraint(Sketcher.Constraint("Angle", 2, Q("-4.999999 deg")))
sketch12.addConstraint(Sketcher.Constraint("Radius", 1, Q("0.750001 mm")))
sketch12.addConstraint(Sketcher.Constraint("DistanceX", 0, 2, -1, 1, Q("35 mm")))
sketch12.addConstraint(Sketcher.Constraint("DistanceX", 3, 2, -1, 1, Q("29.8 mm")))
sketch12.addConstraint(Sketcher.Constraint("DistanceY", 4, 1, 4, 2, Q("9.27292 mm")))

subtractiveloft = doc.addObject("PartDesign::SubtractiveLoft", "SubtractiveLoft")
body.addObject(subtractiveloft)
subtractiveloft.Profile = sketch11
subtractiveloft.Sections = [sketch12]

sketch13 = doc.addObject("Sketcher::SketchObject", "Sketch012")
body.addObject(sketch13)
sketch13.AttachmentSupport = (doc.XZ_Plane, [""])
sketch13.MapMode = "FlatFace"
sketch13.addGeometry(Part.LineSegment(V(-45, 12, 0), V(-45, 0, 0)), False)
sketch13.addGeometry(Part.ArcOfCircle(Part.Circle(V(15, 0, 0), V(0, 0, 1), 60), math.radians(168.46), math.radians(180)), False)
sketch13.addGeometry(Part.LineSegment(V(-43.8, 12, 0), V(-45, 12, 0)), False)
sketch13.addConstraint(Sketcher.Constraint("Tangent", 0, 2, 1, 2))
sketch13.addConstraint(Sketcher.Constraint("Coincident", 1, 1, 2, 1))
sketch13.addConstraint(Sketcher.Constraint("Coincident", 2, 2, 0, 1))
sketch13.addConstraint(Sketcher.Constraint("Vertical", 0))
sketch13.addConstraint(Sketcher.Constraint("Horizontal", 2))
sketch13.addConstraint(Sketcher.Constraint("PointOnObject", 0, 2, -1))
sketch13.addConstraint(Sketcher.Constraint("DistanceY", 0, 2, 0, 1, Q("12 mm")))
sketch13.addConstraint(Sketcher.Constraint("DistanceX", 0, 2, -1, 1, Q("45 mm")))
sketch13.addConstraint(Sketcher.Constraint("Radius", 1, Q("60.000046 mm")))
groove = doc.addObject("PartDesign::Groove", "Groove")
body.addObject(groove)
groove.Profile = sketch13
groove.ReferenceAxis = (sketch13, ["V_Axis"])
groove.Angle = 45

sketch14 = doc.addObject("Sketcher::SketchObject", "Sketch013")
body.addObject(sketch14)
sketch14.AttachmentSupport = (doc.XZ_Plane, [""])
sketch14.MapMode = "FlatFace"
sketch14.addGeometry(Part.LineSegment(V(-45, 12, 0), V(-45, 0, 0)), False)
sketch14.addGeometry(Part.ArcOfCircle(Part.Circle(V(15, 0, 0), V(0, 0, 1), 60), math.radians(168.46), math.radians(180)), False)
sketch14.addGeometry(Part.LineSegment(V(-43.8, 12, 0), V(-45, 12, 0)), False)
sketch14.addConstraint(Sketcher.Constraint("Tangent", 0, 2, 1, 2))
sketch14.addConstraint(Sketcher.Constraint("Coincident", 1, 1, 2, 1))
sketch14.addConstraint(Sketcher.Constraint("Coincident", 2, 2, 0, 1))
sketch14.addConstraint(Sketcher.Constraint("Vertical", 0))
sketch14.addConstraint(Sketcher.Constraint("Horizontal", 2))
sketch14.addConstraint(Sketcher.Constraint("PointOnObject", 0, 2, -1))
sketch14.addConstraint(Sketcher.Constraint("DistanceY", 0, 2, 0, 1, Q("12 mm")))
sketch14.addConstraint(Sketcher.Constraint("DistanceX", 0, 2, -1, 1, Q("45 mm")))
sketch14.addConstraint(Sketcher.Constraint("Radius", 1, Q("60.000046 mm")))
groove2 = doc.addObject("PartDesign::Groove", "Groove001")
body.addObject(groove2)
groove2.Profile = sketch14
groove2.ReferenceAxis = (sketch14, ["V_Axis"])
groove2.Angle = 45
groove2.Reversed = True
doc.recompute()

chamfer = doc.addObject("PartDesign::Chamfer", "Chamfer")
body.addObject(chamfer)
chamfer.Base = (groove2, edges_at(groove2, [(-15.742, 14.142, 8)]))
chamfer.Size = 1.2
doc.recompute()

chamfer2 = doc.addObject("PartDesign::Chamfer", "Chamfer001")
body.addObject(chamfer2)
chamfer2.Base = (chamfer, edges_at(chamfer, [(12.542, 14.142, 8)]))
chamfer2.Size = 1.2
doc.recompute()

chamfer3 = doc.addObject("PartDesign::Chamfer", "Chamfer002")
body.addObject(chamfer3)
chamfer3.Base = (chamfer2, edges_at(chamfer2, [(12.542, -14.142, 8)]))
chamfer3.Size = 1.2
doc.recompute()

chamfer4 = doc.addObject("PartDesign::Chamfer", "Chamfer003")
body.addObject(chamfer4)
chamfer4.Base = (chamfer3, edges_at(chamfer3, [(-15.742, -14.142, 8)]))
chamfer4.Size = 1.2

doc.recompute()
